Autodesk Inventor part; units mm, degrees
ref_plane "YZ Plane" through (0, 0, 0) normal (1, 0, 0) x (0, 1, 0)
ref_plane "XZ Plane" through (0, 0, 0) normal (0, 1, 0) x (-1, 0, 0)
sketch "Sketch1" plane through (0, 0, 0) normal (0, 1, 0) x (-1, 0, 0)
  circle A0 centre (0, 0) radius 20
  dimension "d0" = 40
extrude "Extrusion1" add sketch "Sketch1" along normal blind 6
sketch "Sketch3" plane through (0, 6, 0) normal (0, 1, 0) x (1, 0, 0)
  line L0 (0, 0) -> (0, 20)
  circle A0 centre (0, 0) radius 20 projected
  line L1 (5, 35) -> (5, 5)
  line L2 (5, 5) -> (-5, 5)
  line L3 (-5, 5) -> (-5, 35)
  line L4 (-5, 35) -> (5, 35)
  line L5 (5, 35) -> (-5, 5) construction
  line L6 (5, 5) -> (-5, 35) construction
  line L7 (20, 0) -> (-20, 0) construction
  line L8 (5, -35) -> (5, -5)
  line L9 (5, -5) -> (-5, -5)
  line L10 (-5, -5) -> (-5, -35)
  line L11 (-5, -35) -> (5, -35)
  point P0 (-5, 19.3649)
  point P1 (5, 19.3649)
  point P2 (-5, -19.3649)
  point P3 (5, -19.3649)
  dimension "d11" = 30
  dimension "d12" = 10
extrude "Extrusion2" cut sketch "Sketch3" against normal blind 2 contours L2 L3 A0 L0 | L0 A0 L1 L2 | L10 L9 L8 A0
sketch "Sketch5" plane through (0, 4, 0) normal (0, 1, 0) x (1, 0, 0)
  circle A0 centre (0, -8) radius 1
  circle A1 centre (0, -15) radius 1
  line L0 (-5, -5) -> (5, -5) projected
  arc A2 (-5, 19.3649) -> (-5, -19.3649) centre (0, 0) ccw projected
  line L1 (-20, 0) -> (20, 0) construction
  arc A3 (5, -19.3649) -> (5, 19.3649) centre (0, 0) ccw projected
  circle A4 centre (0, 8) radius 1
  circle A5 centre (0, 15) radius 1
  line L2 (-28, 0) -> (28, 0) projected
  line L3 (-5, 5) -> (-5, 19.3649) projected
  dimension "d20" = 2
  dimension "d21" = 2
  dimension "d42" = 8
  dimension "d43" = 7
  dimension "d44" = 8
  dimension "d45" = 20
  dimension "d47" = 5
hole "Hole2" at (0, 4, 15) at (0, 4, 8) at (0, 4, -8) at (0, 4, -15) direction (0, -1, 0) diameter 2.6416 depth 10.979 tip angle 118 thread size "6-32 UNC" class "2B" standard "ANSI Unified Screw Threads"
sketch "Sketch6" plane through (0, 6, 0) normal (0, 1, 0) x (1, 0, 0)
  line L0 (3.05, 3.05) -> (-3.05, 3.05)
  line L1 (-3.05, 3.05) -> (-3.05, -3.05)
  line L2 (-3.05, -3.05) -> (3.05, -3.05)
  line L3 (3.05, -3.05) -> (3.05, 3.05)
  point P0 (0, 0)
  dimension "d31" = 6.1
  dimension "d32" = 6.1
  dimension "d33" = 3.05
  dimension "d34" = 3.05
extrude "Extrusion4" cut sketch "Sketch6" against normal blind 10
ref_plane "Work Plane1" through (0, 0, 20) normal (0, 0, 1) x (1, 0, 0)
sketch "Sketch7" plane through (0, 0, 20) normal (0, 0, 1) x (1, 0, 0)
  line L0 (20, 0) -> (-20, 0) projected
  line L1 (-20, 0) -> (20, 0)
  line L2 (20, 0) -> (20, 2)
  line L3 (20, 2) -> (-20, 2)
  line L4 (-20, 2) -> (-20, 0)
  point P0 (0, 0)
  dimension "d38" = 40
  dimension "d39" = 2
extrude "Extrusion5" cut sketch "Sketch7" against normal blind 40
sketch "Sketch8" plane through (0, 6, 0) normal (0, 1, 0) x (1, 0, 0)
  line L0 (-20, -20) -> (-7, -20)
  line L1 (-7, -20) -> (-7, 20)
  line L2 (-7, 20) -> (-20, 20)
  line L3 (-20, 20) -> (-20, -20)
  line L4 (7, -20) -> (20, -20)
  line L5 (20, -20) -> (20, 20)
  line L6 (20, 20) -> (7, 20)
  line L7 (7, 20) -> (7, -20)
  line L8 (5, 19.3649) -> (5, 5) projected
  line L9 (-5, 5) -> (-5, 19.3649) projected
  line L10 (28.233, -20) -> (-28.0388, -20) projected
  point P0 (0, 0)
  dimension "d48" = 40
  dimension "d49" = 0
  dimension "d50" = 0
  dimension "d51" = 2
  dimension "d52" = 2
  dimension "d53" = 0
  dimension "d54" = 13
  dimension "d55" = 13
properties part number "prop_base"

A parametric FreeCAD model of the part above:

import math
import FreeCAD as App
import Part
import Sketcher

V = App.Vector
Q = App.Units.Quantity

doc = App.newDocument("Part")
body = doc.addObject("PartDesign::Body", "Body")

sketch1 = body.newObject("Sketcher::SketchObject", "Sketch")
sketch1.AttachmentSupport = (doc.getObject("XZ_Plane"), [""])
sketch1.MapMode = "FlatFace"
sketch1.addGeometry(Part.Circle(V(0, 0, 0), V(0, 0, 1), 20), False)
sketch1.addConstraint([
    Sketcher.Constraint("Coincident", 0, 3, -1, 1),
    Sketcher.Constraint("Diameter", 0, Q("40 mm")),
])
pad1 = body.newObject("PartDesign::Pad", "Pad")
pad1.Profile = sketch1
pad1.Length = 6
pad1.Reversed = True

sketch2 = body.newObject("Sketcher::SketchObject", "Sketch001")
sketch2.AttachmentSupport = (doc.getObject("XZ_Plane"), [""])
sketch2.MapMode = "FlatFace"
sketch2.AttachmentOffset = App.Placement(V(0, 0, -6), App.Rotation())
sketch2.addGeometry([
    Part.LineSegment(V(-5, -5, 0), V(5, -5, 0)),
    Part.LineSegment(V(5, -5, 0), V(5, -19, 0)),
    Part.ArcOfCircle(Part.Circle(V(0, 0, 0), V(0, 0, 1), 20), math.radians(-104), math.radians(-76)),
    Part.LineSegment(V(-5, -19, 0), V(-5, -5, 0)),
    Part.LineSegment(V(-5, 5, 0), V(-5, 19, 0)),
    Part.ArcOfCircle(Part.Circle(V(0, 0, 0), V(0, 0, 1), 20), math.radians(76), math.radians(104)),
    Part.LineSegment(V(5, 19, 0), V(5, 5, 0)),
    Part.LineSegment(V(5, 5, 0), V(-5, 5, 0)),
], False)
sketch2.addConstraint([
    Sketcher.Constraint("Coincident", 0, 2, 1, 1),
    Sketcher.Constraint("Coincident", 1, 2, 2, 2),
    Sketcher.Constraint("Coincident", 2, 1, 3, 1),
    Sketcher.Constraint("Coincident", 3, 2, 0, 1),
    Sketcher.Constraint("Coincident", 4, 2, 5, 2),
    Sketcher.Constraint("Coincident", 5, 1, 6, 1),
    Sketcher.Constraint("Coincident", 6, 2, 7, 1),
    Sketcher.Constraint("Coincident", 7, 2, 4, 1),
    Sketcher.Constraint("Horizontal", 0),
    Sketcher.Constraint("Vertical", 1),
    Sketcher.Constraint("Vertical", 3),
    Sketcher.Constraint("Vertical", 4),
    Sketcher.Constraint("Vertical", 6),
    Sketcher.Constraint("Horizontal", 7),
    Sketcher.Constraint("Coincident", 2, 3, -1, 1),
    Sketcher.Constraint("Coincident", 5, 3, -1, 1),
    Sketcher.Constraint("Equal", 2, 5),
    Sketcher.Constraint("Symmetric", 3, 2, 6, 2, -1, 1),
    Sketcher.Constraint("Horizontal", 1, 2, 2, 1),
    Sketcher.Constraint("Horizontal", 4, 2, 5, 1),
    Sketcher.Constraint("DistanceX", 0, 1, 0, 2, Q("10 mm")),
    Sketcher.Constraint("Radius", 2, Q("20 mm")),
    Sketcher.Constraint("DistanceY", 0, 2, 6, 2, Q("10 mm")),
])
pocket1 = body.newObject("PartDesign::Pocket", "Pocket")
pocket1.Profile = sketch2
pocket1.Length = 2
pocket1.Reversed = True

sketch3 = body.newObject("Sketcher::SketchObject", "Sketch002")
sketch3.AttachmentSupport = (doc.getObject("XZ_Plane"), [""])
sketch3.MapMode = "FlatFace"
sketch3.AttachmentOffset = App.Placement(V(0, 0, -4), App.Rotation())
sketch3.addGeometry([
    Part.Circle(V(0, 15, 0), V(0, 0, 1), 1.3),
    Part.Circle(V(0, 8, 0), V(0, 0, 1), 1.3),
    Part.Circle(V(0, -8, 0), V(0, 0, 1), 1.3),
    Part.Circle(V(0, -15, 0), V(0, 0, 1), 1.3),
], False)
sketch3.addConstraint([
    Sketcher.Constraint("Equal", 0, 1),
    Sketcher.Constraint("Equal", 1, 2),
    Sketcher.Constraint("Equal", 2, 3),
    Sketcher.Constraint("Symmetric", 1, 3, 2, 3, -1, 1),
    Sketcher.Constraint("Symmetric", 0, 3, 3, 3, -1, 1),
    Sketcher.Constraint("PointOnObject", 0, 3, -2),
    Sketcher.Constraint("PointOnObject", 1, 3, -2),
    Sketcher.Constraint("DistanceY", -1, 1, 0, 3, Q("15 mm")),
    Sketcher.Constraint("DistanceY", -1, 1, 1, 3, Q("8 mm")),
    Sketcher.Constraint("Diameter", 0, Q("2.6416 mm")),
])
doc.recompute()
hole = body.newObject("PartDesign::Hole", "Hole")
hole.Profile = sketch3
hole.ThreadType = "None"
hole.Diameter = 2.6416
hole.DepthType = "Dimension"
hole.Depth = 10.979
hole.DrillPoint = "Angled"
hole.DrillPointAngle = 118
hole.Reversed = True

sketch4 = body.newObject("Sketcher::SketchObject", "Sketch003")
sketch4.AttachmentSupport = (doc.getObject("XZ_Plane"), [""])
sketch4.MapMode = "FlatFace"
sketch4.AttachmentOffset = App.Placement(V(0, 0, -6), App.Rotation())
sketch4.addGeometry([
    Part.LineSegment(V(3, 3, 0), V(3, -3, 0)),
    Part.LineSegment(V(3, -3, 0), V(-3, -3, 0)),
    Part.LineSegment(V(-3, -3, 0), V(-3, 3, 0)),
    Part.LineSegment(V(-3, 3, 0), V(3, 3, 0)),
], False)
sketch4.addConstraint([
    Sketcher.Constraint("Coincident", 0, 2, 1, 1),
    Sketcher.Constraint("Coincident", 1, 2, 2, 1),
    Sketcher.Constraint("Coincident", 2, 2, 3, 1),
    Sketcher.Constraint("Coincident", 3, 2, 0, 1),
    Sketcher.Constraint("Vertical", 0),
    Sketcher.Constraint("Horizontal", 1),
    Sketcher.Constraint("Vertical", 2),
    Sketcher.Constraint("Horizontal", 3),
    Sketcher.Constraint("Symmetric", 0, 2, 2, 2, -1, 1),
    Sketcher.Constraint("Equal", 3, 0),
    Sketcher.Constraint("DistanceX", 1, 2, 1, 1, Q("6.1 mm")),
])
pocket2 = body.newObject("PartDesign::Pocket", "Pocket001")
pocket2.Profile = sketch4
pocket2.Length = 10
pocket2.Reversed = True

sketch5 = body.newObject("Sketcher::SketchObject", "Sketch004")
sketch5.AttachmentSupport = (doc.getObject("XY_Plane"), [""])
sketch5.MapMode = "FlatFace"
sketch5.AttachmentOffset = App.Placement(V(0, 0, 20), App.Rotation())
sketch5.addGeometry([
    Part.LineSegment(V(-20, 0, 0), V(20, 0, 0)),
    Part.LineSegment(V(20, 0, 0), V(20, 2, 0)),
    Part.LineSegment(V(20, 2, 0), V(-20, 2, 0)),
    Part.LineSegment(V(-20, 2, 0), V(-20, 0, 0)),
], False)
sketch5.addConstraint([
    Sketcher.Constraint("Coincident", 0, 2, 1, 1),
    Sketcher.Constraint("Coincident", 1, 2, 2, 1),
    Sketcher.Constraint("Coincident", 2, 2, 3, 1),
    Sketcher.Constraint("Coincident", 3, 2, 0, 1),
    Sketcher.Constraint("Horizontal", 0),
    Sketcher.Constraint("Vertical", 1),
    Sketcher.Constraint("Horizontal", 2),
    Sketcher.Constraint("Vertical", 3),
    Sketcher.Constraint("Symmetric", 0, 2, 3, 2, -1, 1),
    Sketcher.Constraint("DistanceX", 0, 1, 0, 2, Q("40 mm")),
    Sketcher.Constraint("DistanceY", 1, 1, 1, 2, Q("2 mm")),
])
pocket3 = body.newObject("PartDesign::Pocket", "Pocket002")
pocket3.Profile = sketch5
pocket3.Length = 40

doc.recompute()
